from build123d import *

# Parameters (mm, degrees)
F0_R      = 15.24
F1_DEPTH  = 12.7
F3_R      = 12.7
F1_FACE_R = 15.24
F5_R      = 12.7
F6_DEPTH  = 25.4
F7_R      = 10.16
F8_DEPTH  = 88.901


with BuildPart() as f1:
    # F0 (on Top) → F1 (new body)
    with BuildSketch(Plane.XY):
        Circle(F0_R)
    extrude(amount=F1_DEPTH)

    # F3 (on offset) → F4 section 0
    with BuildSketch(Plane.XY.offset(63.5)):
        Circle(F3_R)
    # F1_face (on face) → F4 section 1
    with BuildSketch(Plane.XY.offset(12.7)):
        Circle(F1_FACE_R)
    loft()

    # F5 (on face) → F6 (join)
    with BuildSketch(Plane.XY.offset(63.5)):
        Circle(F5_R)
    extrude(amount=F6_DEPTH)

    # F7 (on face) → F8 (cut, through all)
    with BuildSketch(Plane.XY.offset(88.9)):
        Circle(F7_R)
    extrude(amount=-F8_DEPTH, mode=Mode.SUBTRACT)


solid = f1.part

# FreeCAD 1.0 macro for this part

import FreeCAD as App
import Part
import Sketcher

V = App.Vector
Q = App.Units.Quantity

doc = App.newDocument("Part")
body = doc.addObject("PartDesign::Body", "Body")

sketch1 = doc.addObject("Sketcher::SketchObject", "Sketch")
body.addObject(sketch1)
sketch1.AttachmentSupport = (doc.XY_Plane, [""])
sketch1.MapMode = "FlatFace"
sketch1.addGeometry(Part.Circle(V(0, 0, 0), V(0, 0, 1), 15), False)
sketch1.addConstraint([
    Sketcher.Constraint("Coincident", 0, 3, -1, 1),
    Sketcher.Constraint("Diameter", 0, Q("1.2 in")),
])
pad1 = doc.addObject("PartDesign::Pad", "Pad")
body.addObject(pad1)
pad1.Profile = sketch1
pad1.Length = Q("0.5 in")

sketch2 = doc.addObject("Sketcher::SketchObject", "Sketch001")
body.addObject(sketch2)
sketch2.AttachmentSupport = (doc.XY_Plane, [""])
sketch2.MapMode = "FlatFace"
sketch2.AttachmentOffset = App.Placement(V(0, 0, 2.5 * 25.4), App.Rotation())
sketch2.addGeometry(Part.Circle(V(0, 0, 0), V(0, 0, 1), 13), False)
sketch2.addConstraint([
    Sketcher.Constraint("Coincident", 0, 3, -1, 1),
    Sketcher.Constraint("Diameter", 0, Q("1 in")),
])

sketch3 = doc.addObject("Sketcher::SketchObject", "Sketch002")
body.addObject(sketch3)
sketch3.AttachmentSupport = (doc.XY_Plane, [""])
sketch3.MapMode = "FlatFace"
sketch3.AttachmentOffset = App.Placement(V(0, 0, 0.5 * 25.4), App.Rotation())
sketch3.addGeometry(Part.Circle(V(0, 0, 0), V(0, 0, 1), 15), False)
sketch3.addConstraint([
    Sketcher.Constraint("Coincident", 0, 3, -1, 1),
    Sketcher.Constraint("Diameter", 0, Q("1.2 in")),
])

additiveloft = doc.addObject("PartDesign::AdditiveLoft", "AdditiveLoft")
body.addObject(additiveloft)
additiveloft.Profile = sketch2
additiveloft.Sections = [sketch3]

sketch4 = doc.addObject("Sketcher::SketchObject", "Sketch003")
body.addObject(sketch4)
sketch4.AttachmentSupport = (doc.XY_Plane, [""])
sketch4.MapMode = "FlatFace"
sketch4.AttachmentOffset = App.Placement(V(0, 0, 2.5 * 25.4), App.Rotation())
sketch4.addGeometry(Part.Circle(V(0, 0, 0), V(0, 0, 1), 13), False)
sketch4.addConstraint([
    Sketcher.Constraint("Coincident", 0, 3, -1, 1),
    Sketcher.Constraint("Diameter", 0, Q("1 in")),
])
pad2 = doc.addObject("PartDesign::Pad", "Pad001")
body.addObject(pad2)
pad2.Profile = sketch4
pad2.Length = Q("1 in")

sketch5 = doc.addObject("Sketcher::SketchObject", "Sketch004")
body.addObject(sketch5)
sketch5.AttachmentSupport = (doc.XY_Plane, [""])
sketch5.MapMode = "FlatFace"
sketch5.AttachmentOffset = App.Placement(V(0, 0, 3.5 * 25.4), App.Rotation())
sketch5.addGeometry(Part.Circle(V(0, 0, 0), V(0, 0, 1), 10), False)
sketch5.addConstraint([
    Sketcher.Constraint("Coincident", 0, 3, -1, 1),
    Sketcher.Constraint("Diameter", 0, Q("0.8 in")),
])
pocket1 = doc.addObject("PartDesign::Pocket", "Pocket")
body.addObject(pocket1)
pocket1.Profile = sketch5
pocket1.Type = "ThroughAll"

doc.recompute()
